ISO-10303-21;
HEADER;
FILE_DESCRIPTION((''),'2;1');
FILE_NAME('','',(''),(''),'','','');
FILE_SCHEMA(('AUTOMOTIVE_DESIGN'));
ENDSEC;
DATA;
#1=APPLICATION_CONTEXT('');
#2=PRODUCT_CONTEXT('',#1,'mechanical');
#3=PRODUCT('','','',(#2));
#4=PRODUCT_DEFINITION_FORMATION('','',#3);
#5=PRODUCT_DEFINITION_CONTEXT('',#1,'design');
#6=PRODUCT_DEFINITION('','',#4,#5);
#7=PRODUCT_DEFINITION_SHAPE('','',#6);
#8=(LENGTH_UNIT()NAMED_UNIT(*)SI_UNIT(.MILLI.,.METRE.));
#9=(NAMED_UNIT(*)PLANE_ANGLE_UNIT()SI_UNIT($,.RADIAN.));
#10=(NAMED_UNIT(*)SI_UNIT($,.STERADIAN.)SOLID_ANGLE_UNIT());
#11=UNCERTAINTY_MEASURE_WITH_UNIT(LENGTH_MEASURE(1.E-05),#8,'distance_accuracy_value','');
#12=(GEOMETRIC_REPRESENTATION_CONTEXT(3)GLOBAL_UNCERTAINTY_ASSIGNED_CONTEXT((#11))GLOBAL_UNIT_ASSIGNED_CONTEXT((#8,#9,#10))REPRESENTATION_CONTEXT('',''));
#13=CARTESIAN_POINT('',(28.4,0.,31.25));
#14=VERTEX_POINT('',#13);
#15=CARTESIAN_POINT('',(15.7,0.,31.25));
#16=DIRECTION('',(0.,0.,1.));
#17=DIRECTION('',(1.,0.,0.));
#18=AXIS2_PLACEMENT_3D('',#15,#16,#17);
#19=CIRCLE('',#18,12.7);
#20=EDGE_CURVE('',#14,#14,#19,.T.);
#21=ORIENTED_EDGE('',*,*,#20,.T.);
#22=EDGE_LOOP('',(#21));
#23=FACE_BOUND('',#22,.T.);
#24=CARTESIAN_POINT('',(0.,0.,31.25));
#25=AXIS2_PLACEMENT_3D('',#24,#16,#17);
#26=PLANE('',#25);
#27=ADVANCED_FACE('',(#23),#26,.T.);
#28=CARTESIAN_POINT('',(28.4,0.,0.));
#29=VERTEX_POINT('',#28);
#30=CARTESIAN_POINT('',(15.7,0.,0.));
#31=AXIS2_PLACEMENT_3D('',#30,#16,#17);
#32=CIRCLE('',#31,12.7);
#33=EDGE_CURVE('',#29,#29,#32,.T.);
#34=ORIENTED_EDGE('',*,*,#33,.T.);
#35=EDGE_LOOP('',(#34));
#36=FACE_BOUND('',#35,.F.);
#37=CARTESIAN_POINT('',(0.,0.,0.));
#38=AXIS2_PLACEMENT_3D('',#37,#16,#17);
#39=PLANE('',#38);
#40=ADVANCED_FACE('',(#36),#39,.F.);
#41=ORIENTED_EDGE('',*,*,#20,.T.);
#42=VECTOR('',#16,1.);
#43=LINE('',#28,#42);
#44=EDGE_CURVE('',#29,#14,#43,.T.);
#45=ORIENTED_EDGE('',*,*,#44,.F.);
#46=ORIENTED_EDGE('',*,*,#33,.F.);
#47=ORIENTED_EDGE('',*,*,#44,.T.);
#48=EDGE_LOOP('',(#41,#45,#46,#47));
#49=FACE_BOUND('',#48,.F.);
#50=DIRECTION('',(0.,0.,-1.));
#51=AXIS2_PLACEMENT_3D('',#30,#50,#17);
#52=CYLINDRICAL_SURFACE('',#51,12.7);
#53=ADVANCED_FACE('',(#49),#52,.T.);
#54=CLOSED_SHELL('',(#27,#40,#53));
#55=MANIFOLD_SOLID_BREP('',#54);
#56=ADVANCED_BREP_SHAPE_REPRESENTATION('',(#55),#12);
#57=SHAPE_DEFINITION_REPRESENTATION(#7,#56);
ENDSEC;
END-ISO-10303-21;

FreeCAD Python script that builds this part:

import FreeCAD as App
import Part
import Sketcher
Q = App.Units.Quantity

doc = App.newDocument("Part")
params = doc.addObject("Spreadsheet::Sheet", "Params")
for row, (alias, value) in enumerate([
    ("sketch1_diameter", "1 in"),
    ("pad1_length", "31.25 mm"),
], start=1):
    params.set(f"A{row}", alias)
    params.set(f"B{row}", "=" + value)
    params.setAlias(f"B{row}", alias)

body = doc.addObject("PartDesign::Body", "Body")

# Sketch on XY plane
sketch1 = body.newObject("Sketcher::SketchObject", "Sketch")
sketch1.AttachmentSupport = (doc.getObject("XY_Plane"), [""])
sketch1.MapMode = "FlatFace"
sketch1.addGeometry(Part.Circle(App.Vector(15.7, 0, 0), App.Vector(0, 0, 1), 12.7), False)
sketch1.addConstraint([
    Sketcher.Constraint("PointOnObject", 0, 3, -1),
    Sketcher.Constraint("Diameter", 0, Q("1 in")),
    Sketcher.Constraint("DistanceX", -1, 1, 0, 3, Q("0.6181 in")),
])
sketch1.setExpression("Constraints[1]", "Params.sketch1_diameter")
pad1 = body.newObject("PartDesign::Pad", "Pad")
pad1.Profile = sketch1
pad1.setExpression("Length", "Params.pad1_length")

doc.recompute()
